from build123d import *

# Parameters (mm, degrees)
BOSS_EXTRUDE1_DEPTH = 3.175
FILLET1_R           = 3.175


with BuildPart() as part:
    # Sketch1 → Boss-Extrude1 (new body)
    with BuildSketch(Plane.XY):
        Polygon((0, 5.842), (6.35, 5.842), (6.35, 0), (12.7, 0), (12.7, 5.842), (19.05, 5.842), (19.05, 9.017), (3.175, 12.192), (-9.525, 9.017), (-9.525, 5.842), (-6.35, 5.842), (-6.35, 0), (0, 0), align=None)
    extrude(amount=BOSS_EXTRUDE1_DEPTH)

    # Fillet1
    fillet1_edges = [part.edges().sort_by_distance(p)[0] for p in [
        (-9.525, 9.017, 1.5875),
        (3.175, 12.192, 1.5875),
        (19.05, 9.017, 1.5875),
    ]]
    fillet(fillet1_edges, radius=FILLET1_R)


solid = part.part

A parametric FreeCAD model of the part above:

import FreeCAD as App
import Part
import Sketcher

V = App.Vector
Q = App.Units.Quantity


def edges_at(feature, points):
    """Names of the edges that pass closest to the given points."""
    edges = feature.Shape.Edges
    near = lambda p: min(range(len(edges)), key=lambda i: edges[i].distToShape(Part.Vertex(*p))[0])
    return sorted({f"Edge{near(p) + 1}" for p in points})

doc = App.newDocument("Part")
body = doc.addObject("PartDesign::Body", "Body")

sketch1 = body.newObject("Sketcher::SketchObject", "Sketch")
sketch1.AttachmentSupport = (doc.getObject("XY_Plane"), [""])
sketch1.MapMode = "FlatFace"
sketch1.addGeometry(Part.LineSegment(V(0, 5.8, 0), V(6.3, 5.8, 0)), False)
sketch1.addGeometry(Part.LineSegment(V(6.3, 5.8, 0), V(6.3, 0, 0)), False)
sketch1.addGeometry(Part.LineSegment(V(6.3, 0, 0), V(12.7, 0, 0)), False)
sketch1.addGeometry(Part.LineSegment(V(12.7, 0, 0), V(12.7, 5.8, 0)), False)
sketch1.addGeometry(Part.LineSegment(V(12.7, 5.8, 0), V(19.1, 5.8, 0)), False)
sketch1.addGeometry(Part.LineSegment(V(19.1, 5.8, 0), V(19.1, 9, 0)), False)
sketch1.addGeometry(Part.LineSegment(V(19.1, 9, 0), V(3.2, 12.2, 0)), False)
sketch1.addGeometry(Part.LineSegment(V(3.2, 12.2, 0), V(-9.5, 9, 0)), False)
sketch1.addGeometry(Part.LineSegment(V(-9.5, 9, 0), V(-9.5, 5.8, 0)), False)
sketch1.addGeometry(Part.LineSegment(V(-9.5, 5.8, 0), V(-6.3, 5.8, 0)), False)
sketch1.addGeometry(Part.LineSegment(V(-6.3, 5.8, 0), V(-6.3, 0, 0)), False)
sketch1.addGeometry(Part.LineSegment(V(-6.3, 0, 0), V(0, 0, 0)), False)
sketch1.addGeometry(Part.LineSegment(V(0, 0, 0), V(0, 5.8, 0)), False)
sketch1.addConstraint(Sketcher.Constraint("Coincident", 0, 2, 1, 1))
sketch1.addConstraint(Sketcher.Constraint("Coincident", 1, 2, 2, 1))
sketch1.addConstraint(Sketcher.Constraint("Coincident", 2, 2, 3, 1))
sketch1.addConstraint(Sketcher.Constraint("Coincident", 3, 2, 4, 1))
sketch1.addConstraint(Sketcher.Constraint("Coincident", 4, 2, 5, 1))
sketch1.addConstraint(Sketcher.Constraint("Coincident", 5, 2, 6, 1))
sketch1.addConstraint(Sketcher.Constraint("Coincident", 6, 2, 7, 1))
sketch1.addConstraint(Sketcher.Constraint("Coincident", 7, 2, 8, 1))
sketch1.addConstraint(Sketcher.Constraint("Coincident", 8, 2, 9, 1))
sketch1.addConstraint(Sketcher.Constraint("Coincident", 9, 2, 10, 1))
sketch1.addConstraint(Sketcher.Constraint("Coincident", 10, 2, 11, 1))
sketch1.addConstraint(Sketcher.Constraint("Coincident", 11, 2, 12, 1))
sketch1.addConstraint(Sketcher.Constraint("Coincident", 12, 2, 0, 1))
sketch1.addConstraint(Sketcher.Constraint("Horizontal", 0))
sketch1.addConstraint(Sketcher.Constraint("Vertical", 1))
sketch1.addConstraint(Sketcher.Constraint("Horizontal", 2))
sketch1.addConstraint(Sketcher.Constraint("Vertical", 3))
sketch1.addConstraint(Sketcher.Constraint("Horizontal", 4))
sketch1.addConstraint(Sketcher.Constraint("Vertical", 5))
sketch1.addConstraint(Sketcher.Constraint("Vertical", 8))
sketch1.addConstraint(Sketcher.Constraint("Horizontal", 9))
sketch1.addConstraint(Sketcher.Constraint("Vertical", 10))
sketch1.addConstraint(Sketcher.Constraint("Horizontal", 11))
sketch1.addConstraint(Sketcher.Constraint("Vertical", 12))
sketch1.addConstraint(Sketcher.Constraint("Coincident", 11, 2, -1, 1))
sketch1.addConstraint(Sketcher.Constraint("Symmetric", 1, 2, 10, 2, -1, 1))
sketch1.addConstraint(Sketcher.Constraint("Horizontal", 0, 2, 3, 2))
sketch1.addConstraint(Sketcher.Constraint("Horizontal", 5, 2, 7, 2))
sketch1.addConstraint(Sketcher.Constraint("Horizontal", 4, 2, 8, 2))
sketch1.addConstraint(Sketcher.Constraint("Equal", 0, 2))
sketch1.addConstraint(Sketcher.Constraint("Equal", 2, 4))
sketch1.addConstraint(Sketcher.Constraint("Equal", 9, 5))
sketch1.addConstraint(Sketcher.Constraint("DistanceX", 0, 1, 0, 2, Q("0.25 in")))
sketch1.addConstraint(Sketcher.Constraint("DistanceY", 1, 2, 1, 1, Q("0.23 in")))
sketch1.addConstraint(Sketcher.Constraint("DistanceX", 7, 2, 6, 2, Q("0.5 in")))
sketch1.addConstraint(Sketcher.Constraint("DistanceX", 9, 1, 9, 2, Q("0.125 in")))
sketch1.addConstraint(Sketcher.Constraint("DistanceY", -1, 1, 6, 2, Q("0.48 in")))
pad1 = body.newObject("PartDesign::Pad", "Pad")
pad1.Profile = sketch1
pad1.Length = Q("0.125 in")
doc.recompute()

fillet = body.newObject("PartDesign::Fillet", "Fillet")
fillet.Base = (pad1, edges_at(pad1, [(-9.525, 9.017, 1.587), (3.175, 12.192, 1.587), (19.05, 9.017, 1.587)]))
fillet.Radius = Q("0.125 in")

doc.recompute()
